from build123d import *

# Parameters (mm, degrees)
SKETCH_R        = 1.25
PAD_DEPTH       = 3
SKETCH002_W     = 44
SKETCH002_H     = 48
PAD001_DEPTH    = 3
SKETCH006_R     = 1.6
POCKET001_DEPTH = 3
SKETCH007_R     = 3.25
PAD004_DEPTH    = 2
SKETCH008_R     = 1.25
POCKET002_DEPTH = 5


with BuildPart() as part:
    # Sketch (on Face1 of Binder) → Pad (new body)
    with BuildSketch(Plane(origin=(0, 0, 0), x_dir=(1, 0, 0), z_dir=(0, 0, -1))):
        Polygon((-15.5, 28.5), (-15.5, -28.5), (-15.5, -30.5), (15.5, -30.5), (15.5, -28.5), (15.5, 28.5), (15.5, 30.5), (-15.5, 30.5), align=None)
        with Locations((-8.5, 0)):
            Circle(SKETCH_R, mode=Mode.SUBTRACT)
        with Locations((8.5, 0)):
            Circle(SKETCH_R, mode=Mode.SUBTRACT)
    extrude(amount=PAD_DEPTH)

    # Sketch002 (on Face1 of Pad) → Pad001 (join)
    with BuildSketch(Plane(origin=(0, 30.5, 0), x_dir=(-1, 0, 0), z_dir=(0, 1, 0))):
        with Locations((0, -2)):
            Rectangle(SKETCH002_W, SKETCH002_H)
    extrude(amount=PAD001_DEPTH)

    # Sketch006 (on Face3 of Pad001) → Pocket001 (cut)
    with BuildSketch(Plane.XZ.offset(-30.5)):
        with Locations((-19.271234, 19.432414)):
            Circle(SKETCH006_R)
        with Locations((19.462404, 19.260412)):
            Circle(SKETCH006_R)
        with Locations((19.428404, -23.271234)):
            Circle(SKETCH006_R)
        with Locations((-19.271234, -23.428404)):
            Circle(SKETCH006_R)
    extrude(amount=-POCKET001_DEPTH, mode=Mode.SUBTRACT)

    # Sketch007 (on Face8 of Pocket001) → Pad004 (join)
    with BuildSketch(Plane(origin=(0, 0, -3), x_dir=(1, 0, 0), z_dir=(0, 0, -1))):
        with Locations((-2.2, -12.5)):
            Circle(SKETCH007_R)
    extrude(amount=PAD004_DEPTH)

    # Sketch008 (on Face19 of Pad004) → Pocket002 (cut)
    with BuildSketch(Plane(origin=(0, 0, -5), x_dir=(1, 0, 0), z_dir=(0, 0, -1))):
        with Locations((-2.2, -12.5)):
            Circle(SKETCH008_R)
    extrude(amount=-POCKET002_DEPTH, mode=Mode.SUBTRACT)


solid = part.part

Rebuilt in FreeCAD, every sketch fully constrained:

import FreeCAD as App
import Part
import Sketcher

V = App.Vector

doc = App.newDocument("Part")
body = doc.addObject("PartDesign::Body", "Body")

sketch1 = body.newObject("Sketcher::SketchObject", "Sketch")
sketch1.AttachmentSupport = (doc.getObject("XY_Plane"), [""])
sketch1.MapMode = "FlatFace"
sketch1.addGeometry(Part.LineSegment(V(-15.5, 30.5, 0), V(15.5, 30.5, 0)), False)
sketch1.addGeometry(Part.LineSegment(V(15.5, 30.5, 0), V(15.5, -30.5, 0)), False)
sketch1.addGeometry(Part.LineSegment(V(15.5, -30.5, 0), V(-15.5, -30.5, 0)), False)
sketch1.addGeometry(Part.LineSegment(V(-15.5, -30.5, 0), V(-15.5, 30.5, 0)), False)
sketch1.addGeometry(Part.Circle(V(-8.5, 0, 0), V(0, 0, 1), 1.2), False)
sketch1.addGeometry(Part.Circle(V(8.5, 0, 0), V(0, 0, 1), 1.2), False)
sketch1.addConstraint(Sketcher.Constraint("Coincident", 0, 2, 1, 1))
sketch1.addConstraint(Sketcher.Constraint("Coincident", 1, 2, 2, 1))
sketch1.addConstraint(Sketcher.Constraint("Coincident", 2, 2, 3, 1))
sketch1.addConstraint(Sketcher.Constraint("Coincident", 3, 2, 0, 1))
sketch1.addConstraint(Sketcher.Constraint("Horizontal", 0))
sketch1.addConstraint(Sketcher.Constraint("Vertical", 1))
sketch1.addConstraint(Sketcher.Constraint("Horizontal", 2))
sketch1.addConstraint(Sketcher.Constraint("Vertical", 3))
sketch1.addConstraint(Sketcher.Constraint("Equal", 4, 5))
sketch1.addConstraint(Sketcher.Constraint("Symmetric", 4, 3, 5, 3, -1, 1))
sketch1.addConstraint(Sketcher.Constraint("Symmetric", 0, 2, 2, 2, -1, 1))
sketch1.addConstraint(Sketcher.Constraint("PointOnObject", 4, 3, -1))
sketch1.addConstraint(Sketcher.Constraint("Diameter", 4, 2.5))
sketch1.addConstraint(Sketcher.Constraint("DistanceX", 0, 1, 0, 2, 31.0))
sketch1.addConstraint(Sketcher.Constraint("DistanceY", 1, 2, 1, 1, 61.0))
sketch1.addConstraint(Sketcher.Constraint("DistanceX", 4, 3, 5, 3, 17.0))
pad1 = body.newObject("PartDesign::Pad", "Pad")
pad1.Profile = sketch1
pad1.Length = 3
pad1.Reversed = True

sketch2 = body.newObject("Sketcher::SketchObject", "Sketch001")
sketch2.AttachmentSupport = (doc.getObject("XZ_Plane"), [""])
sketch2.MapMode = "FlatFace"
sketch2.AttachmentOffset = App.Placement(V(0, 0, -30.5), App.Rotation())
sketch2.addGeometry(Part.LineSegment(V(22, 22, 0), V(22, -26, 0)), False)
sketch2.addGeometry(Part.LineSegment(V(22, -26, 0), V(-22, -26, 0)), False)
sketch2.addGeometry(Part.LineSegment(V(-22, -26, 0), V(-22, 22, 0)), False)
sketch2.addGeometry(Part.LineSegment(V(-22, 22, 0), V(22, 22, 0)), False)
sketch2.addConstraint(Sketcher.Constraint("Coincident", 0, 2, 1, 1))
sketch2.addConstraint(Sketcher.Constraint("Coincident", 1, 2, 2, 1))
sketch2.addConstraint(Sketcher.Constraint("Coincident", 2, 2, 3, 1))
sketch2.addConstraint(Sketcher.Constraint("Coincident", 3, 2, 0, 1))
sketch2.addConstraint(Sketcher.Constraint("Vertical", 0))
sketch2.addConstraint(Sketcher.Constraint("Horizontal", 1))
sketch2.addConstraint(Sketcher.Constraint("Vertical", 2))
sketch2.addConstraint(Sketcher.Constraint("Horizontal", 3))
sketch2.addConstraint(Sketcher.Constraint("DistanceX", 1, 2, 1, 1, 44.0))
sketch2.addConstraint(Sketcher.Constraint("DistanceY", 0, 2, 0, 1, 48.0))
sketch2.addConstraint(Sketcher.Constraint("DistanceX", -1, 1, 0, 2, 22.0))
sketch2.addConstraint(Sketcher.Constraint("DistanceY", 0, 2, -1, 1, 26.0))
pad2 = body.newObject("PartDesign::Pad", "Pad001")
pad2.Profile = sketch2
pad2.Length = 3
pad2.Reversed = True

sketch3 = body.newObject("Sketcher::SketchObject", "Sketch002")
sketch3.AttachmentSupport = (doc.getObject("XZ_Plane"), [""])
sketch3.MapMode = "FlatFace"
sketch3.AttachmentOffset = App.Placement(V(0, 0, -30.5), App.Rotation())
sketch3.addGeometry(Part.Circle(V(-19.3, 19.4, 0), V(0, 0, 1), 1.6), False)
sketch3.addGeometry(Part.Circle(V(19.5, 19.3, 0), V(0, 0, 1), 1.6), False)
sketch3.addGeometry(Part.Circle(V(19.4, -23.3, 0), V(0, 0, 1), 1.6), False)
sketch3.addGeometry(Part.Circle(V(-19.3, -23.4, 0), V(0, 0, 1), 1.6), False)
sketch3.addConstraint(Sketcher.Constraint("Equal", 0, 1))
sketch3.addConstraint(Sketcher.Constraint("Equal", 1, 2))
sketch3.addConstraint(Sketcher.Constraint("Equal", 2, 3))
sketch3.addConstraint(Sketcher.Constraint("Vertical", 0, 3, 3, 3))
sketch3.addConstraint(Sketcher.Constraint("Diameter", 0, 3.2))
sketch3.addConstraint(Sketcher.Constraint("DistanceX", 2, 3, 1, 3, 0.034))
sketch3.addConstraint(Sketcher.Constraint("DistanceY", -1, 1, 1, 3, 19.260412))
sketch3.addConstraint(Sketcher.Constraint("DistanceY", 3, 3, 2, 3, 0.15717))
sketch3.addConstraint(Sketcher.Constraint("DistanceY", 3, 3, 0, 3, 42.860818))
sketch3.addConstraint(Sketcher.Constraint("DistanceX", 0, 3, -1, 1, 19.271234))
sketch3.addConstraint(Sketcher.Constraint("DistanceY", -1, 1, 0, 3, 19.432414))
sketch3.addConstraint(Sketcher.Constraint("DistanceX", -1, 1, 1, 3, 19.462404))
pocket1 = body.newObject("PartDesign::Pocket", "Pocket")
pocket1.Profile = sketch3
pocket1.Length = 3

sketch4 = body.newObject("Sketcher::SketchObject", "Sketch003")
sketch4.AttachmentSupport = (doc.getObject("XY_Plane"), [""])
sketch4.MapMode = "FlatFace"
sketch4.AttachmentOffset = App.Placement(V(0, 0, -3), App.Rotation())
sketch4.addGeometry(Part.Circle(V(-2.2, 12.5, 0), V(0, 0, 1), 3.2), False)
sketch4.addConstraint(Sketcher.Constraint("Diameter", 0, 6.5))
sketch4.addConstraint(Sketcher.Constraint("DistanceX", 0, 3, -1, 1, 2.2))
sketch4.addConstraint(Sketcher.Constraint("DistanceY", -1, 1, 0, 3, 12.5))
pad3 = body.newObject("PartDesign::Pad", "Pad002")
pad3.Profile = sketch4
pad3.Length = 2
pad3.Reversed = True

sketch5 = body.newObject("Sketcher::SketchObject", "Sketch004")
sketch5.AttachmentSupport = (doc.getObject("XY_Plane"), [""])
sketch5.MapMode = "FlatFace"
sketch5.AttachmentOffset = App.Placement(V(0, 0, -5), App.Rotation())
sketch5.addGeometry(Part.Circle(V(-2.2, 12.5, 0), V(0, 0, 1), 1.2), False)
sketch5.addConstraint(Sketcher.Constraint("Diameter", 0, 2.5))
sketch5.addConstraint(Sketcher.Constraint("DistanceX", 0, 3, -1, 1, 2.2))
sketch5.addConstraint(Sketcher.Constraint("DistanceY", -1, 1, 0, 3, 12.5))
pocket2 = body.newObject("PartDesign::Pocket", "Pocket001")
pocket2.Profile = sketch5
pocket2.Length = 5
pocket2.Reversed = True

doc.recompute()
